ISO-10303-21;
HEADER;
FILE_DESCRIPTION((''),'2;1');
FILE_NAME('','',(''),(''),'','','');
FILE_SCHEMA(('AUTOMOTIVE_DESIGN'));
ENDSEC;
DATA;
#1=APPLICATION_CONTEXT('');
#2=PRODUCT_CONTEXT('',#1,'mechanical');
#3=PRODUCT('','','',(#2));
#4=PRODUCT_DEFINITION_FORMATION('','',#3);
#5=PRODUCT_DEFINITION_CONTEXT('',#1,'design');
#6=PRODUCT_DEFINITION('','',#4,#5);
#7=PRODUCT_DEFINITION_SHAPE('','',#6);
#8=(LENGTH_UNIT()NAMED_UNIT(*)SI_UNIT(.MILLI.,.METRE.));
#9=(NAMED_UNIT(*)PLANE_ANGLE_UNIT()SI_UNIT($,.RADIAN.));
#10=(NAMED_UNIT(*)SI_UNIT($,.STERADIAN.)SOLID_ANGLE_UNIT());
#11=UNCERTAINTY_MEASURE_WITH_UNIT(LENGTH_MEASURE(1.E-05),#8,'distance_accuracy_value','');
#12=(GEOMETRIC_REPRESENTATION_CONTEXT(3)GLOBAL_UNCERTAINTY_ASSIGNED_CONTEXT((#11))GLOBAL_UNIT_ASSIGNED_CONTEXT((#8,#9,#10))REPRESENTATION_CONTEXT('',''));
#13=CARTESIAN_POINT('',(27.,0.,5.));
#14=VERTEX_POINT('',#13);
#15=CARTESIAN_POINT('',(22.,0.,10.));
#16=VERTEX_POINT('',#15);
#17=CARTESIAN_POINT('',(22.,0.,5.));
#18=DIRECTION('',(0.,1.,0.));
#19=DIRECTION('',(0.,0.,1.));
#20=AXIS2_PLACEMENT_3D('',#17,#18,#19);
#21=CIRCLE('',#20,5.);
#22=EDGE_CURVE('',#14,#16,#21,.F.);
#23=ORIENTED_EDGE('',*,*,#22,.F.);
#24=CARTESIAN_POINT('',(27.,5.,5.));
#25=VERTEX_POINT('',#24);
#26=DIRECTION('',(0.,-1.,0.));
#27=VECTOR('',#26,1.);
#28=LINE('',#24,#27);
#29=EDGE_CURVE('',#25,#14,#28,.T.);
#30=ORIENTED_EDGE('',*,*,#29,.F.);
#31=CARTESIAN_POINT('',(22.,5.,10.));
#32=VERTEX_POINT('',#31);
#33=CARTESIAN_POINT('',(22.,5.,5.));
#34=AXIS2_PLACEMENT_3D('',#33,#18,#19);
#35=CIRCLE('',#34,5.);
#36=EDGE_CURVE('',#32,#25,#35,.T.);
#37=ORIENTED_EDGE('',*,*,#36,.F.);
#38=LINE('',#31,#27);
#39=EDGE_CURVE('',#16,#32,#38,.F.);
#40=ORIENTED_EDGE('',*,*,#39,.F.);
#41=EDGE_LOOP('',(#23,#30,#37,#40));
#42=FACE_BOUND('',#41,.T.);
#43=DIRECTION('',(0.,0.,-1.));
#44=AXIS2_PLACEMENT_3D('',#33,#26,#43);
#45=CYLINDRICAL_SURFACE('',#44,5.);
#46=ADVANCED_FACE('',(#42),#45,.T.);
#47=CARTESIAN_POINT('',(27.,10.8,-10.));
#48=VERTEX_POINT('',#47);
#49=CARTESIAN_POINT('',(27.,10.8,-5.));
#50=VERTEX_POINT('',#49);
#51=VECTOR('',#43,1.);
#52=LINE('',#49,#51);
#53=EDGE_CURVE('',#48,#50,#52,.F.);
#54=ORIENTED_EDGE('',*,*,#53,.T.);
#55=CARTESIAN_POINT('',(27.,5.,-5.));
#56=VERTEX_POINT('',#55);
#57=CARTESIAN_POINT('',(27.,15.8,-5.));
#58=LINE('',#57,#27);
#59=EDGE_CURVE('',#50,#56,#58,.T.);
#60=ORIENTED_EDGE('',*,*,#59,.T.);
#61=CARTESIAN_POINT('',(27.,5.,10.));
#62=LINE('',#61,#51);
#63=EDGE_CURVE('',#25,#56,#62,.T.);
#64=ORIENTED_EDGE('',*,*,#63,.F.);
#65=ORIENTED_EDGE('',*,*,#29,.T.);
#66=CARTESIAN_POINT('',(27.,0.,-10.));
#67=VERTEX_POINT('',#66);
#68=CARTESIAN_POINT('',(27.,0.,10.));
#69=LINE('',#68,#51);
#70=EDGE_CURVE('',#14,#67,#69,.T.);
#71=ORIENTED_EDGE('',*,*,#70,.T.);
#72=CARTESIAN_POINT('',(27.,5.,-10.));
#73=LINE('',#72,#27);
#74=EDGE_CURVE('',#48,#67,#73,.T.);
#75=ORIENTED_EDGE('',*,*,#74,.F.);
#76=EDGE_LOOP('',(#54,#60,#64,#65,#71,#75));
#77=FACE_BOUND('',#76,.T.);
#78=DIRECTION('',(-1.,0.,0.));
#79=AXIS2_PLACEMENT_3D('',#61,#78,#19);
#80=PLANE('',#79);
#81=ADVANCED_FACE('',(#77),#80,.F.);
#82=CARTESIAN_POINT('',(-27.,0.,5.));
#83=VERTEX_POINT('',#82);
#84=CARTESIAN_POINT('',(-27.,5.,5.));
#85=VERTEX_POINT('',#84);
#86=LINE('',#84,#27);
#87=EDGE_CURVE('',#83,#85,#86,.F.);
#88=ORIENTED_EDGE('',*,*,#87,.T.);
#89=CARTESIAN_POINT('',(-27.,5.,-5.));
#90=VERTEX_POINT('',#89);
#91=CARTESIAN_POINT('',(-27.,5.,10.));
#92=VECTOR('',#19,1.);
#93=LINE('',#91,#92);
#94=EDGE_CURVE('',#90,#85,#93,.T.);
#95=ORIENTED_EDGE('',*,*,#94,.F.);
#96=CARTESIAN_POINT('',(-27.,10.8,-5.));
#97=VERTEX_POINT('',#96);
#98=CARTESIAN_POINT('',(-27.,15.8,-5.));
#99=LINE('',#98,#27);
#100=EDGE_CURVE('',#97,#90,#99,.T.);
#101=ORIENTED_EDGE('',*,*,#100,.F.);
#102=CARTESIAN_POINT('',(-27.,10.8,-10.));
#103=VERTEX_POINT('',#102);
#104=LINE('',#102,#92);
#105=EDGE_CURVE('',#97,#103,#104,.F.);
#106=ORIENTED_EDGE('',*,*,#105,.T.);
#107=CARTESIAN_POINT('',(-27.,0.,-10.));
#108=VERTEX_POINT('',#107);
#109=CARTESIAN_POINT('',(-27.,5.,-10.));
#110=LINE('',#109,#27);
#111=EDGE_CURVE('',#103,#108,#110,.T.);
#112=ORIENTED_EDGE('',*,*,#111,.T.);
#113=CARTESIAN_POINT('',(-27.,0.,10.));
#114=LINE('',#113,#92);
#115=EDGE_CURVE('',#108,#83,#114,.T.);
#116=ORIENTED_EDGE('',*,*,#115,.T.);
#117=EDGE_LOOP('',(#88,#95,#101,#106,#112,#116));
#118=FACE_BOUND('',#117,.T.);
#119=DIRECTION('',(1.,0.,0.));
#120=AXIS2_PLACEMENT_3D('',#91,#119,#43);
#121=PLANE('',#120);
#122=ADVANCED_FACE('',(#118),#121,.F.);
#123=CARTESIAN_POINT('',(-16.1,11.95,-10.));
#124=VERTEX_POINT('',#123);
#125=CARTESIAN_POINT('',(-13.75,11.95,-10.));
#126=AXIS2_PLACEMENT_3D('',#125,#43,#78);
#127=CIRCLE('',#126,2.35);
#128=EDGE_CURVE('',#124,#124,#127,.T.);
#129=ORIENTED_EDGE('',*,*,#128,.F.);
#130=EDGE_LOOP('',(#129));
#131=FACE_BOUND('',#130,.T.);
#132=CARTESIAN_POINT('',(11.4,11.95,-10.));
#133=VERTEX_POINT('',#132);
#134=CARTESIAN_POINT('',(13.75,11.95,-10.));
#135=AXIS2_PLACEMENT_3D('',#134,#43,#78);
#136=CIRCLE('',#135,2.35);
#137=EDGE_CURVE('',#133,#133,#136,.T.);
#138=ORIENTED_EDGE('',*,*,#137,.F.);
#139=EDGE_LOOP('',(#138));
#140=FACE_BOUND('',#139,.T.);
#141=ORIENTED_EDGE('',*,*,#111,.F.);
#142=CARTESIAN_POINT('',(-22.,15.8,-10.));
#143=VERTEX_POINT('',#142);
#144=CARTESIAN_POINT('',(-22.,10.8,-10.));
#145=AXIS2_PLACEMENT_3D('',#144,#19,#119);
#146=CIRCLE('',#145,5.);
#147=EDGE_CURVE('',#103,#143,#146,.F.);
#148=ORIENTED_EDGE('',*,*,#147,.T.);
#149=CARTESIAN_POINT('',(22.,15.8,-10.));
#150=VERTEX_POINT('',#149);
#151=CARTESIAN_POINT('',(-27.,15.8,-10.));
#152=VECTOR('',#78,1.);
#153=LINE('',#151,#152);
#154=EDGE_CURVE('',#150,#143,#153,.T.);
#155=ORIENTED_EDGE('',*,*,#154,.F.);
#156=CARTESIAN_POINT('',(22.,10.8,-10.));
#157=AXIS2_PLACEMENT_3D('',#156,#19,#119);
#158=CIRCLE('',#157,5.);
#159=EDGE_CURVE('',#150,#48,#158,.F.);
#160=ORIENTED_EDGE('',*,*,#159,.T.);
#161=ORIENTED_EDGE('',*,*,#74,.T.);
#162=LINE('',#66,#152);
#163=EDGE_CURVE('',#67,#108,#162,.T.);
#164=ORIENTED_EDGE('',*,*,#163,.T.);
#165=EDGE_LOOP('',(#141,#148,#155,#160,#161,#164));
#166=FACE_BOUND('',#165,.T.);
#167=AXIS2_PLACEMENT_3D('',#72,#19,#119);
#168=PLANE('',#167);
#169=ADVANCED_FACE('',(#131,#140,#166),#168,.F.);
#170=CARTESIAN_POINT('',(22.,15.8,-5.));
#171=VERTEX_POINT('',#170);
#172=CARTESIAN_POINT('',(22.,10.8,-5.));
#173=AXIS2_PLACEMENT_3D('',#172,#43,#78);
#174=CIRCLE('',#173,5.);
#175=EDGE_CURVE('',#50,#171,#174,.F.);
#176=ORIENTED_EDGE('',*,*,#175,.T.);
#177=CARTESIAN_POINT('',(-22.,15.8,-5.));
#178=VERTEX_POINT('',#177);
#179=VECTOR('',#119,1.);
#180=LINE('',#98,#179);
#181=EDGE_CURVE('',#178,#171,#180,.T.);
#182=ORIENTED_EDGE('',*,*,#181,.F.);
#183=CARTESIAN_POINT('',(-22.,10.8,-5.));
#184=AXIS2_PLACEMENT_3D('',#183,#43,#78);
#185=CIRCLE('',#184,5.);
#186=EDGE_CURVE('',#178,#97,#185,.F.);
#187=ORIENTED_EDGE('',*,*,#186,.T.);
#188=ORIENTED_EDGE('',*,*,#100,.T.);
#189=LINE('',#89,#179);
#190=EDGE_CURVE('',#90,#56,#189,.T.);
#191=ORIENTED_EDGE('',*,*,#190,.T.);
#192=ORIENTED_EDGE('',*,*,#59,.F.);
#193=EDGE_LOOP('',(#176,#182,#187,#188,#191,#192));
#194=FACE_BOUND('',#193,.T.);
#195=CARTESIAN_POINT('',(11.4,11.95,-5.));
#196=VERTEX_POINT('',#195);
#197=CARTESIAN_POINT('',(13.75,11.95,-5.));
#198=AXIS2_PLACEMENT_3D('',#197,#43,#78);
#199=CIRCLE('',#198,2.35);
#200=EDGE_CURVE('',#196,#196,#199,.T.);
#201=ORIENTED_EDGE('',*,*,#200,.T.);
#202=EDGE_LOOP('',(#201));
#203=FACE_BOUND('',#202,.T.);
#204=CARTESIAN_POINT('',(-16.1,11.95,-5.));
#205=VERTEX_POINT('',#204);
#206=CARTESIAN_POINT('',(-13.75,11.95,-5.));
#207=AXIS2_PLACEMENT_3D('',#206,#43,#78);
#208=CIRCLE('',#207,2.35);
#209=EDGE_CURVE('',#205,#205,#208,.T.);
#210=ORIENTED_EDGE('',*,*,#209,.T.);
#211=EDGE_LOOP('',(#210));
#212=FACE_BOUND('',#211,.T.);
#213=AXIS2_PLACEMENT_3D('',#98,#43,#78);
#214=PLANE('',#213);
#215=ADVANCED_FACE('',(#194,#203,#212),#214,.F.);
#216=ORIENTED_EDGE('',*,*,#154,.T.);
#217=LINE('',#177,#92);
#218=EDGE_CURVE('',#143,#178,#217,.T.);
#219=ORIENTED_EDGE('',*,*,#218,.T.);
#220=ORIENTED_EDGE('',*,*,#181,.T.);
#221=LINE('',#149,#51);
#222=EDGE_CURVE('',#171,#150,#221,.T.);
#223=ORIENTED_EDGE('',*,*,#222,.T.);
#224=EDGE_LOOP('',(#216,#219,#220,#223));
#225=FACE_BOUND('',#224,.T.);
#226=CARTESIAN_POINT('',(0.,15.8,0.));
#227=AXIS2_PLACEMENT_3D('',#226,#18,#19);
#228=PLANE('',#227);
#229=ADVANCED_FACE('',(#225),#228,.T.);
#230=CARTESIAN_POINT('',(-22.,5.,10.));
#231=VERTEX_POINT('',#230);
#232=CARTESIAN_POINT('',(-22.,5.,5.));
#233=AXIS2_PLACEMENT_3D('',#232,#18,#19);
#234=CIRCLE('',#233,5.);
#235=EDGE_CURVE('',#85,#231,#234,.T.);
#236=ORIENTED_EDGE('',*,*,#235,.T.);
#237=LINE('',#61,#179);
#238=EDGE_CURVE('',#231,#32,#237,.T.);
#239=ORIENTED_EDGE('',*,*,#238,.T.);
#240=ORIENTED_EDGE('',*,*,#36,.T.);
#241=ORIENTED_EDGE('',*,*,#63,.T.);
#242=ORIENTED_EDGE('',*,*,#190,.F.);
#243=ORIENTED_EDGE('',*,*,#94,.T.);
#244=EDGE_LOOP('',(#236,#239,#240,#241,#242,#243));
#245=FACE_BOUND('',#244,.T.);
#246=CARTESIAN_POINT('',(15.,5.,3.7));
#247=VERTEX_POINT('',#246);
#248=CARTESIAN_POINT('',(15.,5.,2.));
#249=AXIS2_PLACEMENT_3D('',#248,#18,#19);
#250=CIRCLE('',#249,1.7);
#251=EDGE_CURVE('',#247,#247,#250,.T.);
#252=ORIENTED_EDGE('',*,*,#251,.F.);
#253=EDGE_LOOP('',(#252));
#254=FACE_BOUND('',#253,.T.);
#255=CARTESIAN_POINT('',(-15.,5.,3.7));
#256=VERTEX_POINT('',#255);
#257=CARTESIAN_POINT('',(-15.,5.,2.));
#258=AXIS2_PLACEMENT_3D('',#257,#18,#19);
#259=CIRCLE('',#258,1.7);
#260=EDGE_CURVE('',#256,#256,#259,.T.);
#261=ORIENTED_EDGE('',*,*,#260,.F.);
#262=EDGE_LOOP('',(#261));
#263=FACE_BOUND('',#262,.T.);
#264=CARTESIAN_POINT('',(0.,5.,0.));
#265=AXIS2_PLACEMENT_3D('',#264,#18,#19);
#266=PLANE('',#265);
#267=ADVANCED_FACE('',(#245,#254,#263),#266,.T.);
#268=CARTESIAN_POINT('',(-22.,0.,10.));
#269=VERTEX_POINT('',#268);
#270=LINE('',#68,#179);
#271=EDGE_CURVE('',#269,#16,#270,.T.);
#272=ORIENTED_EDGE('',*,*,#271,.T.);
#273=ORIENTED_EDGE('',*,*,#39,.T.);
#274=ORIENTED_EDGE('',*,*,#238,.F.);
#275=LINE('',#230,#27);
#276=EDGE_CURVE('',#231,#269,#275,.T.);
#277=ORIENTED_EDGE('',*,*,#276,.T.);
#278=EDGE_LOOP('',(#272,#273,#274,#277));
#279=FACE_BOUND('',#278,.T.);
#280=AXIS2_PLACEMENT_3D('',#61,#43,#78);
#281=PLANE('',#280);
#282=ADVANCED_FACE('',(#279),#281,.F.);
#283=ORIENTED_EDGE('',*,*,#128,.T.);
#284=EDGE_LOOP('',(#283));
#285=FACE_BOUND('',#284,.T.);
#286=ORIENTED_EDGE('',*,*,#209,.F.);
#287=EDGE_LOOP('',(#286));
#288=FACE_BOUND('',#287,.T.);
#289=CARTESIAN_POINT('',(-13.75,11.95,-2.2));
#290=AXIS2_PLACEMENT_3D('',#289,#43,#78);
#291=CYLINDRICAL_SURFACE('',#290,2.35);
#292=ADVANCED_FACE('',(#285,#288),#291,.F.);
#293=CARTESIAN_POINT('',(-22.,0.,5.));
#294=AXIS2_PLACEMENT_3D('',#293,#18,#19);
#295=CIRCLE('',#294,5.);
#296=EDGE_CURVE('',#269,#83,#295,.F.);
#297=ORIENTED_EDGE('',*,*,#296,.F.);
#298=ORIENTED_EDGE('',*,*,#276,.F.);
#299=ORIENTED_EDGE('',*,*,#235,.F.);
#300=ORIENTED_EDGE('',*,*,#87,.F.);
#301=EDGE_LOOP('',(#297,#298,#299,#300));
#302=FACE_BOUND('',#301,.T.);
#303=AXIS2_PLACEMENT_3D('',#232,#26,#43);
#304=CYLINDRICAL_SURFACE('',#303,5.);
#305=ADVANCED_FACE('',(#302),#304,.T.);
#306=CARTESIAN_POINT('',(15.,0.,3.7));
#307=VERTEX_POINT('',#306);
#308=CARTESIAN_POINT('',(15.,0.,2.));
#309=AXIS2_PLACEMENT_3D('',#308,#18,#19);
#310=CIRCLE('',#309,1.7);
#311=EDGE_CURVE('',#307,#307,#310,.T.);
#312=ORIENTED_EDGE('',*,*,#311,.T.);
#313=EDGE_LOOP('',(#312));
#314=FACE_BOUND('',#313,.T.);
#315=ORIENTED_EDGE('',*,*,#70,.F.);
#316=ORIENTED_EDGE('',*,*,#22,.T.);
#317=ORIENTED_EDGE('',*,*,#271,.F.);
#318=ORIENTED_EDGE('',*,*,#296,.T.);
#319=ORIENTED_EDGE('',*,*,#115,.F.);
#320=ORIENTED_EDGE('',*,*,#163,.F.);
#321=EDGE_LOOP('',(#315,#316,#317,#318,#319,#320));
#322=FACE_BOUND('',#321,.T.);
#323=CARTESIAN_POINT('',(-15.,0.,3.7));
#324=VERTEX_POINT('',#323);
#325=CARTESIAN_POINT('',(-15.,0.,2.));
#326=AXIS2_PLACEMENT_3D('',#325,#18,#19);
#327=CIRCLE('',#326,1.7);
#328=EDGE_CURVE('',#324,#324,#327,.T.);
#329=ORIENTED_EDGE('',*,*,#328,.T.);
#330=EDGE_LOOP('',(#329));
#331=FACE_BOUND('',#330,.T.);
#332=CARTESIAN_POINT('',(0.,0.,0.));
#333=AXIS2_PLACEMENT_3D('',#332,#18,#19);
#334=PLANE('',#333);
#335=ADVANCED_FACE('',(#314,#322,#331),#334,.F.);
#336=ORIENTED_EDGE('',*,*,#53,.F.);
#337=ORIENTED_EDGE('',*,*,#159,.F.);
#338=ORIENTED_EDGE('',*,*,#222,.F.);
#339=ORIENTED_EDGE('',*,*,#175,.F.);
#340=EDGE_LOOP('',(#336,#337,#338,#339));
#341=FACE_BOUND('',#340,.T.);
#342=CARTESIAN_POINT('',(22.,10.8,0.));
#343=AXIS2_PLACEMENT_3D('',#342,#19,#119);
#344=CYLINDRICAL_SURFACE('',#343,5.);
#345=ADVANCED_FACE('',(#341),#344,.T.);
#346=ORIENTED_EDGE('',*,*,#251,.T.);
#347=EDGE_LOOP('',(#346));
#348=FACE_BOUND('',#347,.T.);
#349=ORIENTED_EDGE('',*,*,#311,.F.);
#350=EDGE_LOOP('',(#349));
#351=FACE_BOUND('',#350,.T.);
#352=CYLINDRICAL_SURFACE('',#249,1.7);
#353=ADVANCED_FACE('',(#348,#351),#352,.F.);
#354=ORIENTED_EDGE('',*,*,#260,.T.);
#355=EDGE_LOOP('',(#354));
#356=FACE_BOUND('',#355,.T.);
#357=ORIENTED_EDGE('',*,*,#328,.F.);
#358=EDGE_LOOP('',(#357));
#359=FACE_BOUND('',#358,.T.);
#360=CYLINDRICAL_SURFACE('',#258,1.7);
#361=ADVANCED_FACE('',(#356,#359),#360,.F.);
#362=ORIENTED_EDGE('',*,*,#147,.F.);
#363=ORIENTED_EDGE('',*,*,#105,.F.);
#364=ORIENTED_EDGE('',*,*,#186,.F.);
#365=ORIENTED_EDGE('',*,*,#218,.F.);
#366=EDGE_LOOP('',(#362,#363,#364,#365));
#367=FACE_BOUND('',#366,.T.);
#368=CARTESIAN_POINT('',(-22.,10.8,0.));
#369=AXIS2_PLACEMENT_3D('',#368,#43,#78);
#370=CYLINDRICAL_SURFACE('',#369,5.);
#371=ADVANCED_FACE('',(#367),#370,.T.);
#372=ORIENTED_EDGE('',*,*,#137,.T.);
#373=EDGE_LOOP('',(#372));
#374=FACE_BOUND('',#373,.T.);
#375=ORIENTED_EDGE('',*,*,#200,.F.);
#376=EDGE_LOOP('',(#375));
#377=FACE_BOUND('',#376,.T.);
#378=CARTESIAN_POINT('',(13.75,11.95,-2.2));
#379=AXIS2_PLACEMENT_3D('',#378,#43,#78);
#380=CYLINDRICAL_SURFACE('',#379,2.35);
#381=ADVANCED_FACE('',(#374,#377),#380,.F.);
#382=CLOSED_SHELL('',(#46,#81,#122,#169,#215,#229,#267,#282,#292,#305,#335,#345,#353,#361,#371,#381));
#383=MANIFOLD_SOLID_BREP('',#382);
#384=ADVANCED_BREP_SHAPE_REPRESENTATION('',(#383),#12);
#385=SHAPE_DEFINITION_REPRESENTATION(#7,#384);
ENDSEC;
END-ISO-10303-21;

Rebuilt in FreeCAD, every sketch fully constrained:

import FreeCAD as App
import Part
import Sketcher

V = App.Vector


def edges_at(feature, points):
    """Names of the edges that pass closest to the given points."""
    edges = feature.Shape.Edges
    near = lambda p: min(range(len(edges)), key=lambda i: edges[i].distToShape(Part.Vertex(*p))[0])
    return sorted({f"Edge{near(p) + 1}" for p in points})

doc = App.newDocument("Part")
body = doc.addObject("PartDesign::Body", "Body")

# Sketch on XZ plane
sketch1 = body.newObject("Sketcher::SketchObject", "Sketch")
sketch1.AttachmentSupport = (doc.getObject("XZ_Plane"), [""])
sketch1.MapMode = "FlatFace"
sketch1.addGeometry(Part.LineSegment(V(-27, -10, 0), V(-27, 10, 0)), False)
sketch1.addGeometry(Part.LineSegment(V(-27, 10, 0), V(27, 10, 0)), False)
sketch1.addGeometry(Part.LineSegment(V(27, 10, 0), V(27, -10, 0)), False)
sketch1.addGeometry(Part.LineSegment(V(27, -10, 0), V(-27, -10, 0)), False)
sketch1.addConstraint(Sketcher.Constraint("Coincident", 0, 2, 1, 1))
sketch1.addConstraint(Sketcher.Constraint("Coincident", 1, 2, 2, 1))
sketch1.addConstraint(Sketcher.Constraint("Coincident", 2, 2, 3, 1))
sketch1.addConstraint(Sketcher.Constraint("Coincident", 3, 2, 0, 1))
sketch1.addConstraint(Sketcher.Constraint("Vertical", 0))
sketch1.addConstraint(Sketcher.Constraint("Horizontal", 1))
sketch1.addConstraint(Sketcher.Constraint("Vertical", 2))
sketch1.addConstraint(Sketcher.Constraint("Horizontal", 3))
sketch1.addConstraint(Sketcher.Constraint("Symmetric", 0, 2, 2, 2, -1, 1))
sketch1.addConstraint(Sketcher.Constraint("DistanceX", 1, 1, 1, 2, 54.0))
sketch1.addConstraint(Sketcher.Constraint("DistanceY", 0, 1, 0, 2, 20.0))
pad1 = body.newObject("PartDesign::Pad", "Pad")
pad1.Profile = sketch1
pad1.Length = 5
pad1.Reversed = True

# Sketch on XZ plane
sketch2 = body.newObject("Sketcher::SketchObject", "Sketch001")
sketch2.AttachmentSupport = (doc.getObject("XZ_Plane"), [""])
sketch2.MapMode = "FlatFace"
sketch2.AttachmentOffset = App.Placement(V(0, 0, -5), App.Rotation())
sketch2.addGeometry(Part.LineSegment(V(-27, -10, 0), V(-27, -5, 0)), False)
sketch2.addGeometry(Part.LineSegment(V(-27, -5, 0), V(27, -5, 0)), False)
sketch2.addGeometry(Part.LineSegment(V(27, -5, 0), V(27, -10, 0)), False)
sketch2.addGeometry(Part.LineSegment(V(27, -10, 0), V(-27, -10, 0)), False)
sketch2.addConstraint(Sketcher.Constraint("Coincident", 0, 2, 1, 1))
sketch2.addConstraint(Sketcher.Constraint("Coincident", 1, 2, 2, 1))
sketch2.addConstraint(Sketcher.Constraint("Coincident", 2, 2, 3, 1))
sketch2.addConstraint(Sketcher.Constraint("Coincident", 3, 2, 0, 1))
sketch2.addConstraint(Sketcher.Constraint("Vertical", 0))
sketch2.addConstraint(Sketcher.Constraint("Horizontal", 1))
sketch2.addConstraint(Sketcher.Constraint("Vertical", 2))
sketch2.addConstraint(Sketcher.Constraint("Horizontal", 3))
sketch2.addConstraint(Sketcher.Constraint("DistanceX", 1, 1, 1, 2, 54.0))
sketch2.addConstraint(Sketcher.Constraint("DistanceY", 0, 1, 0, 2, 5.0))
sketch2.addConstraint(Sketcher.Constraint("DistanceX", 0, 2, -1, 1, 27.0))
sketch2.addConstraint(Sketcher.Constraint("DistanceY", 0, 2, -1, 1, 5.0))
pad2 = body.newObject("PartDesign::Pad", "Pad001")
pad2.Profile = sketch2
pad2.Length = 10.8
pad2.Reversed = True

# Sketch on XY plane
sketch3 = body.newObject("Sketcher::SketchObject", "Sketch002")
sketch3.AttachmentSupport = (doc.getObject("XY_Plane"), [""])
sketch3.MapMode = "FlatFace"
sketch3.AttachmentOffset = App.Placement(V(0, 0, -5), App.Rotation())
sketch3.addGeometry(Part.Circle(V(-13.8, 12.6, 0), V(0, 0, 1), 1.7), False)
sketch3.addGeometry(Part.Circle(V(13.8, 12.6, 0), V(0, 0, 1), 1.7), False)
sketch3.addConstraint(Sketcher.Constraint("Equal", 0, 1))
sketch3.addConstraint(Sketcher.Constraint("Symmetric", 0, 3, 1, 3, -2))
sketch3.addConstraint(Sketcher.Constraint("Diameter", 0, 3.4))
sketch3.addConstraint(Sketcher.Constraint("DistanceY", -1, 1, 0, 3, 12.6))
sketch3.addConstraint(Sketcher.Constraint("DistanceX", 0, 3, 1, 3, 27.5))
doc.recompute()
hole = body.newObject("PartDesign::Hole", "Hole")
hole.Profile = sketch3
hole.ThreadType = "None"
hole.Diameter = 3.4
hole.DepthType = "Dimension"
hole.Depth = 28.71
hole.DrillPoint = "Angled"
hole.DrillPointAngle = 118

# Sketch on XZ plane
sketch4 = body.newObject("Sketcher::SketchObject", "Sketch003")
sketch4.AttachmentSupport = (doc.getObject("XZ_Plane"), [""])
sketch4.MapMode = "FlatFace"
sketch4.AttachmentOffset = App.Placement(V(0, 0, -5), App.Rotation())
sketch4.addGeometry(Part.Circle(V(15, 2, 0), V(0, 0, 1), 1.7), False)
sketch4.addGeometry(Part.Circle(V(-15, 2, 0), V(0, 0, 1), 1.7), False)
sketch4.addConstraint(Sketcher.Constraint("Equal", 0, 1))
sketch4.addConstraint(Sketcher.Constraint("Symmetric", 0, 3, 1, 3, -2))
sketch4.addConstraint(Sketcher.Constraint("Diameter", 0, 3.4))
sketch4.addConstraint(Sketcher.Constraint("DistanceX", -1, 1, 0, 3, 15.0))
sketch4.addConstraint(Sketcher.Constraint("DistanceY", -1, 1, 0, 3, 2.0))
doc.recompute()
hole2 = body.newObject("PartDesign::Hole", "Hole001")
hole2.Profile = sketch4
hole2.ThreadType = "None"
hole2.Diameter = 3.4
hole2.DepthType = "ThroughAll"
hole2.Reversed = True
doc.recompute()

fillet = body.newObject("PartDesign::Fillet", "Fillet")
fillet.Base = (hole2, edges_at(hole2, [
    (27, 2.5, 10),
    (-27, 2.5, 10),
    (27, 15.8, -7.5),
    (-27, 15.8, -7.5),
]))
fillet.Radius = 5

# Sketch on XY plane
sketch5 = body.newObject("Sketcher::SketchObject", "Sketch004")
sketch5.AttachmentSupport = (doc.getObject("XY_Plane"), [""])
sketch5.MapMode = "FlatFace"
sketch5.AttachmentOffset = App.Placement(V(0, 0, -10), App.Rotation())
sketch5.addGeometry(Part.Circle(V(13.8, 11.9, 0), V(0, 0, 1), 2.4), False)
sketch5.addConstraint(Sketcher.Constraint("Diameter", 0, 4.7))
sketch5.addConstraint(Sketcher.Constraint("DistanceX", -1, 1, 0, 3, 13.75))
sketch5.addConstraint(Sketcher.Constraint("DistanceY", -1, 1, 0, 3, 11.95))
pocket1 = body.newObject("PartDesign::Pocket", "Pocket")
pocket1.Profile = sketch5
pocket1.Length = 7.8
pocket1.Reversed = True

# Sketch on XY plane
sketch6 = body.newObject("Sketcher::SketchObject", "Sketch005")
sketch6.AttachmentSupport = (doc.getObject("XY_Plane"), [""])
sketch6.MapMode = "FlatFace"
sketch6.AttachmentOffset = App.Placement(V(0, 0, -10), App.Rotation())
sketch6.addGeometry(Part.Circle(V(-13.8, 11.9, 0), V(0, 0, 1), 2.4), False)
sketch6.addConstraint(Sketcher.Constraint("Diameter", 0, 4.7))
sketch6.addConstraint(Sketcher.Constraint("DistanceX", 0, 3, -1, 1, 13.75))
sketch6.addConstraint(Sketcher.Constraint("DistanceY", -1, 1, 0, 3, 11.95))
pocket2 = body.newObject("PartDesign::Pocket", "Pocket001")
pocket2.Profile = sketch6
pocket2.Length = 7.8
pocket2.Reversed = True

doc.recompute()
